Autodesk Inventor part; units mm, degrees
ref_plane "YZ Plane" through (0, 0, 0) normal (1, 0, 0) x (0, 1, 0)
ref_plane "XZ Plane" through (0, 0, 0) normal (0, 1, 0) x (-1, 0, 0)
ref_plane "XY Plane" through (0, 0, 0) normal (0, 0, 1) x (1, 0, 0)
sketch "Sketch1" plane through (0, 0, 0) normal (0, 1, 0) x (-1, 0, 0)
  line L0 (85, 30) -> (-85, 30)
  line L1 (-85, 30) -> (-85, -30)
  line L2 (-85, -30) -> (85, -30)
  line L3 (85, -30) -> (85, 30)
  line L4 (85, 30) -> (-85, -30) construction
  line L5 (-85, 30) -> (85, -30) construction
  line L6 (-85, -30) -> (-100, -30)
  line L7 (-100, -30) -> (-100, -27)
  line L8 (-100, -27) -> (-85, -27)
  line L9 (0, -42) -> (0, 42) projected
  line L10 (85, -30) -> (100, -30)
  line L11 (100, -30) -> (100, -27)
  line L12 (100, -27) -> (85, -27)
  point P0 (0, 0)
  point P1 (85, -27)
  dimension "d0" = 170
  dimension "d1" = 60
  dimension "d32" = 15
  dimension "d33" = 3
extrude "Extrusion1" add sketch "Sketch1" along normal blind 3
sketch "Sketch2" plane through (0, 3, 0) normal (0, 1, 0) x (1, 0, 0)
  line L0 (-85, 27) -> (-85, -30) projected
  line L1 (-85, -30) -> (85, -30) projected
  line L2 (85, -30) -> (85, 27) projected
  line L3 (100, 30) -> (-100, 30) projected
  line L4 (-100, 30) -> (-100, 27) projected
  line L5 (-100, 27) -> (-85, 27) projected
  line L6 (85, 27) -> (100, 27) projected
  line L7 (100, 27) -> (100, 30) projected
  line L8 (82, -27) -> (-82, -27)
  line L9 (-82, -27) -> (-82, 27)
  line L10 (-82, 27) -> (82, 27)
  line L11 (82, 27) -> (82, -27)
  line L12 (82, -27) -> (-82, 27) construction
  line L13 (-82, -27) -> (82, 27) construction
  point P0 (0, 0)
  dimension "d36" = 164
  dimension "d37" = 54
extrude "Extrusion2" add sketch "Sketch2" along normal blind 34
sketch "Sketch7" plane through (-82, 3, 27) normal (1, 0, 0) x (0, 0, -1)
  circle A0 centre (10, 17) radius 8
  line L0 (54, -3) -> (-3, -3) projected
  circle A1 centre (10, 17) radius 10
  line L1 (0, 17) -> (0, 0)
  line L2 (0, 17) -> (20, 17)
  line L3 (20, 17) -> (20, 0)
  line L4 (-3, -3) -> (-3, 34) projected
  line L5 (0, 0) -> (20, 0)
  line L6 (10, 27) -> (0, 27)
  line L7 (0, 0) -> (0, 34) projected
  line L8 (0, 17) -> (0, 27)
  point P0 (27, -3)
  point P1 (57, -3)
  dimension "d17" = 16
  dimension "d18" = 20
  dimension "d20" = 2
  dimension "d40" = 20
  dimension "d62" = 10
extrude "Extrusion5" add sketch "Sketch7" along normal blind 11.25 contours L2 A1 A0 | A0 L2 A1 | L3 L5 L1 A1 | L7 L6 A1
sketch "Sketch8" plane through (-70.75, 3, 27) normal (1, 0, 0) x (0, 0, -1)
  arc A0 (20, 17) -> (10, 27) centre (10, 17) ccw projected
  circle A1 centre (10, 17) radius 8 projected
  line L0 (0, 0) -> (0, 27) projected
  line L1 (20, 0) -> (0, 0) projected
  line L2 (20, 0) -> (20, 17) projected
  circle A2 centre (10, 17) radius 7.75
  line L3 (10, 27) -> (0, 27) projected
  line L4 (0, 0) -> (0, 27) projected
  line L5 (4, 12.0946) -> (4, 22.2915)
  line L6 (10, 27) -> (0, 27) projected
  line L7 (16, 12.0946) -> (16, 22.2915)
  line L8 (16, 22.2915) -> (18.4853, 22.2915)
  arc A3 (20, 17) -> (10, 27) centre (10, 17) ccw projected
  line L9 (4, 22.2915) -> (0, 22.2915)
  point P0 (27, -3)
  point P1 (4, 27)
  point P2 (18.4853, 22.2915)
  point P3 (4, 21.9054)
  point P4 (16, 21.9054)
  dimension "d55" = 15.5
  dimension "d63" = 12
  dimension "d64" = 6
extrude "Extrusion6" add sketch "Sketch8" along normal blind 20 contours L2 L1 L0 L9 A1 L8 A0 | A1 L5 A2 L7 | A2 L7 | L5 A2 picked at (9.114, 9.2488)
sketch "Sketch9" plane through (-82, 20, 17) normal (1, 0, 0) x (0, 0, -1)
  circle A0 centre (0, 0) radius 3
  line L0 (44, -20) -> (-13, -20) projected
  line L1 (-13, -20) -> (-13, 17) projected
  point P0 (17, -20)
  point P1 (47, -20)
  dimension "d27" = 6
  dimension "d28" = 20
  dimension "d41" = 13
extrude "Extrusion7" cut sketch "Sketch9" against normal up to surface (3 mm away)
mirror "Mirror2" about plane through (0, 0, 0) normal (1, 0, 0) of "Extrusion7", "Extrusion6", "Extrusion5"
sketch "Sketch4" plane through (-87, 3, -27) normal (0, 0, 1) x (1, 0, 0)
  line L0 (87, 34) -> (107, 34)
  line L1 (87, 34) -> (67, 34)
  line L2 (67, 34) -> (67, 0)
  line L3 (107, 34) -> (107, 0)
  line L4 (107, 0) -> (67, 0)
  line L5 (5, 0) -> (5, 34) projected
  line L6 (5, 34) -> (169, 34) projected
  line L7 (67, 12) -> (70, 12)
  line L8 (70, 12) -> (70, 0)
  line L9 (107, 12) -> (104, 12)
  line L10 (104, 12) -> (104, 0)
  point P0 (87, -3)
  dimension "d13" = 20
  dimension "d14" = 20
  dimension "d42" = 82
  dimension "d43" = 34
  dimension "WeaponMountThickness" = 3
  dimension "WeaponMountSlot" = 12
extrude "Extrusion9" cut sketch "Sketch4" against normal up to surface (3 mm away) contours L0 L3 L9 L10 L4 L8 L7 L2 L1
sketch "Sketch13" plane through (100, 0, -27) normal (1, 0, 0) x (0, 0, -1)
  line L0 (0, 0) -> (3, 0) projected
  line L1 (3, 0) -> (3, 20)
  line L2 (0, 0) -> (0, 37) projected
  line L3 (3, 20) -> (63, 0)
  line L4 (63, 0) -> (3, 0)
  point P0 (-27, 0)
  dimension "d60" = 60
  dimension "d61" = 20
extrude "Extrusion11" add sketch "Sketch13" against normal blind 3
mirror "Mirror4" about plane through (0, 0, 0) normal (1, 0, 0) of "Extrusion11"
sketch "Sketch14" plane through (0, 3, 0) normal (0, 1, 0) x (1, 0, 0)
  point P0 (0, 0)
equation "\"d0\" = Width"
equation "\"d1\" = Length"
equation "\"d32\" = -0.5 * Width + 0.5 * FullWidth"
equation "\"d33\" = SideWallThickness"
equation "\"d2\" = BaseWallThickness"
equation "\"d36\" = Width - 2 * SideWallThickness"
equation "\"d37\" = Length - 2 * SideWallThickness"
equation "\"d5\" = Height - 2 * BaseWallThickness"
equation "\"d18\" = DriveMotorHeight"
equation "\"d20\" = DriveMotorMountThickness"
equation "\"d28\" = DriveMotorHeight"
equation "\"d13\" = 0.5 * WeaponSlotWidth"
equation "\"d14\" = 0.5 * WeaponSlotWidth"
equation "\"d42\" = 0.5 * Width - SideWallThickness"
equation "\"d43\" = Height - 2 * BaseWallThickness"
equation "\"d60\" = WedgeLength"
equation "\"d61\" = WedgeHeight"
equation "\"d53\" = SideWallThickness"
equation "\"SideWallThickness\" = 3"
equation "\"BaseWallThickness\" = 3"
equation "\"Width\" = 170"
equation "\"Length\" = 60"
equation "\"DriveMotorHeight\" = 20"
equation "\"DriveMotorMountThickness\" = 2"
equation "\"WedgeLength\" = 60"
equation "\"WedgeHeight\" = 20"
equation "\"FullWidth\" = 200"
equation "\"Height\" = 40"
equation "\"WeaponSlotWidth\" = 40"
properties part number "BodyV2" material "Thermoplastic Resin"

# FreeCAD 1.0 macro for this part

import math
import FreeCAD as App
import Part
import Sketcher
from FreeCAD import Vector

doc = App.newDocument("Part")
body = doc.addObject("PartDesign::Body", "Body")

# Sketch on XZ plane
sketch1 = body.newObject("Sketcher::SketchObject", "Sketch")
sketch1.AttachmentSupport = (doc.getObject("XZ_Plane"), [""])
sketch1.MapMode = "FlatFace"
sketch1.addGeometry(Part.LineSegment(Vector(-85, -27, 0), Vector(-85, 30, 0)), False)
sketch1.addGeometry(Part.LineSegment(Vector(-85, 30, 0), Vector(85, 30, 0)), False)
sketch1.addGeometry(Part.LineSegment(Vector(85, 30, 0), Vector(85, -27, 0)), False)
sketch1.addGeometry(Part.LineSegment(Vector(85, -27, 0), Vector(100, -27, 0)), False)
sketch1.addGeometry(Part.LineSegment(Vector(100, -27, 0), Vector(100, -30, 0)), False)
sketch1.addGeometry(Part.LineSegment(Vector(100, -30, 0), Vector(-100, -30, 0)), False)
sketch1.addGeometry(Part.LineSegment(Vector(-100, -30, 0), Vector(-100, -27, 0)), False)
sketch1.addGeometry(Part.LineSegment(Vector(-100, -27, 0), Vector(-85, -27, 0)), False)
sketch1.addConstraint(Sketcher.Constraint("Coincident", 0, 2, 1, 1))
sketch1.addConstraint(Sketcher.Constraint("Coincident", 1, 2, 2, 1))
sketch1.addConstraint(Sketcher.Constraint("Coincident", 2, 2, 3, 1))
sketch1.addConstraint(Sketcher.Constraint("Coincident", 3, 2, 4, 1))
sketch1.addConstraint(Sketcher.Constraint("Coincident", 4, 2, 5, 1))
sketch1.addConstraint(Sketcher.Constraint("Coincident", 5, 2, 6, 1))
sketch1.addConstraint(Sketcher.Constraint("Coincident", 6, 2, 7, 1))
sketch1.addConstraint(Sketcher.Constraint("Coincident", 7, 2, 0, 1))
sketch1.addConstraint(Sketcher.Constraint("Vertical", 0))
sketch1.addConstraint(Sketcher.Constraint("Horizontal", 1))
sketch1.addConstraint(Sketcher.Constraint("Vertical", 2))
sketch1.addConstraint(Sketcher.Constraint("Horizontal", 3))
sketch1.addConstraint(Sketcher.Constraint("Vertical", 4))
sketch1.addConstraint(Sketcher.Constraint("Horizontal", 5))
sketch1.addConstraint(Sketcher.Constraint("Vertical", 6))
sketch1.addConstraint(Sketcher.Constraint("Horizontal", 7))
sketch1.addConstraint(Sketcher.Constraint("Symmetric", 3, 2, 6, 2, -2))
sketch1.addConstraint(Sketcher.Constraint("Equal", 3, 7))
sketch1.addConstraint(Sketcher.Constraint("DistanceX", 1, 1, 1, 2, 170.0))
sketch1.addConstraint(Sketcher.Constraint("DistanceX", 3, 1, 3, 2, 15.0))
sketch1.addConstraint(Sketcher.Constraint("DistanceY", 4, 2, 4, 1, 3.0))
sketch1.addConstraint(Sketcher.Constraint("DistanceY", 4, 2, 1, 2, 60.0))
sketch1.addConstraint(Sketcher.Constraint("DistanceY", -1, 1, 0, 2, 30.0))
pad1 = body.newObject("PartDesign::Pad", "Pad")
pad1.Profile = sketch1
pad1.Length = 3
pad1.Reversed = True

# Sketch on XZ plane
sketch2 = body.newObject("Sketcher::SketchObject", "Sketch001")
sketch2.AttachmentSupport = (doc.getObject("XZ_Plane"), [""])
sketch2.MapMode = "FlatFace"
sketch2.AttachmentOffset = App.Placement(Vector(0, 0, -3), App.Rotation())
sketch2.addGeometry(Part.LineSegment(Vector(-100, -27, 0), Vector(-85, -27, 0)), False)
sketch2.addGeometry(Part.LineSegment(Vector(-85, -27, 0), Vector(-85, 30, 0)), False)
sketch2.addGeometry(Part.LineSegment(Vector(-85, 30, 0), Vector(85, 30, 0)), False)
sketch2.addGeometry(Part.LineSegment(Vector(85, 30, 0), Vector(85, -27, 0)), False)
sketch2.addGeometry(Part.LineSegment(Vector(85, -27, 0), Vector(100, -27, 0)), False)
sketch2.addGeometry(Part.LineSegment(Vector(100, -27, 0), Vector(100, -30, 0)), False)
sketch2.addGeometry(Part.LineSegment(Vector(100, -30, 0), Vector(-100, -30, 0)), False)
sketch2.addGeometry(Part.LineSegment(Vector(-100, -30, 0), Vector(-100, -27, 0)), False)
sketch2.addGeometry(Part.LineSegment(Vector(82, -27, 0), Vector(82, 27, 0)), False)
sketch2.addGeometry(Part.LineSegment(Vector(82, 27, 0), Vector(-82, 27, 0)), False)
sketch2.addGeometry(Part.LineSegment(Vector(-82, 27, 0), Vector(-82, -27, 0)), False)
sketch2.addGeometry(Part.LineSegment(Vector(-82, -27, 0), Vector(82, -27, 0)), False)
sketch2.addConstraint(Sketcher.Constraint("Coincident", 0, 2, 1, 1))
sketch2.addConstraint(Sketcher.Constraint("Coincident", 1, 2, 2, 1))
sketch2.addConstraint(Sketcher.Constraint("Coincident", 2, 2, 3, 1))
sketch2.addConstraint(Sketcher.Constraint("Coincident", 3, 2, 4, 1))
sketch2.addConstraint(Sketcher.Constraint("Coincident", 4, 2, 5, 1))
sketch2.addConstraint(Sketcher.Constraint("Coincident", 5, 2, 6, 1))
sketch2.addConstraint(Sketcher.Constraint("Coincident", 6, 2, 7, 1))
sketch2.addConstraint(Sketcher.Constraint("Coincident", 7, 2, 0, 1))
sketch2.addConstraint(Sketcher.Constraint("Coincident", 8, 2, 9, 1))
sketch2.addConstraint(Sketcher.Constraint("Coincident", 9, 2, 10, 1))
sketch2.addConstraint(Sketcher.Constraint("Coincident", 10, 2, 11, 1))
sketch2.addConstraint(Sketcher.Constraint("Coincident", 11, 2, 8, 1))
sketch2.addConstraint(Sketcher.Constraint("Horizontal", 0))
sketch2.addConstraint(Sketcher.Constraint("Vertical", 1))
sketch2.addConstraint(Sketcher.Constraint("Horizontal", 2))
sketch2.addConstraint(Sketcher.Constraint("Vertical", 3))
sketch2.addConstraint(Sketcher.Constraint("Horizontal", 4))
sketch2.addConstraint(Sketcher.Constraint("Vertical", 5))
sketch2.addConstraint(Sketcher.Constraint("Horizontal", 6))
sketch2.addConstraint(Sketcher.Constraint("Vertical", 7))
sketch2.addConstraint(Sketcher.Constraint("Vertical", 8))
sketch2.addConstraint(Sketcher.Constraint("Horizontal", 9))
sketch2.addConstraint(Sketcher.Constraint("Vertical", 10))
sketch2.addConstraint(Sketcher.Constraint("Horizontal", 11))
sketch2.addConstraint(Sketcher.Constraint("Symmetric", 8, 2, 10, 2, -1, 1))
sketch2.addConstraint(Sketcher.Constraint("Symmetric", 0, 2, 3, 2, -2))
sketch2.addConstraint(Sketcher.Constraint("Horizontal", 7, 2, 10, 2))
sketch2.addConstraint(Sketcher.Constraint("Equal", 0, 4))
sketch2.addConstraint(Sketcher.Constraint("DistanceX", 9, 2, 9, 1, 164.0))
sketch2.addConstraint(Sketcher.Constraint("DistanceY", 8, 1, 8, 2, 54.0))
sketch2.addConstraint(Sketcher.Constraint("DistanceX", 0, 1, 0, 2, 15.0))
sketch2.addConstraint(Sketcher.Constraint("DistanceX", 2, 1, 2, 2, 170.0))
sketch2.addConstraint(Sketcher.Constraint("DistanceY", 1, 1, 1, 2, 57.0))
sketch2.addConstraint(Sketcher.Constraint("DistanceY", 5, 2, 5, 1, 3.0))
pad2 = body.newObject("PartDesign::Pad", "Pad001")
pad2.Profile = sketch2
pad2.Length = 34
pad2.Reversed = True

# Sketch on YZ plane
sketch3 = body.newObject("Sketcher::SketchObject", "Sketch002")
sketch3.AttachmentSupport = (doc.getObject("YZ_Plane"), [""])
sketch3.MapMode = "FlatFace"
sketch3.AttachmentOffset = App.Placement(Vector(0, 0, -82), App.Rotation())
sketch3.addGeometry(Part.ArcOfCircle(Part.Circle(Vector(20, 17, 0), Vector(0, 0, 1), 10), math.radians(-90), math.radians(0)), False)
sketch3.addGeometry(Part.LineSegment(Vector(30, 17, 0), Vector(30, 27, 0)), False)
sketch3.addGeometry(Part.LineSegment(Vector(30, 27, 0), Vector(3, 27, 0)), False)
sketch3.addGeometry(Part.LineSegment(Vector(3, 27, 0), Vector(3, 7, 0)), False)
sketch3.addGeometry(Part.LineSegment(Vector(3, 7, 0), Vector(20, 7, 0)), False)
sketch3.addGeometry(Part.Circle(Vector(20, 17, 0), Vector(0, 0, 1), 8), False)
sketch3.addConstraint(Sketcher.Constraint("Tangent", 0, 2, 1, 1))
sketch3.addConstraint(Sketcher.Constraint("Coincident", 1, 2, 2, 1))
sketch3.addConstraint(Sketcher.Constraint("Coincident", 2, 2, 3, 1))
sketch3.addConstraint(Sketcher.Constraint("Coincident", 3, 2, 4, 1))
sketch3.addConstraint(Sketcher.Constraint("Tangent", 4, 2, 0, 1))
sketch3.addConstraint(Sketcher.Constraint("Vertical", 1))
sketch3.addConstraint(Sketcher.Constraint("Horizontal", 2))
sketch3.addConstraint(Sketcher.Constraint("Vertical", 3))
sketch3.addConstraint(Sketcher.Constraint("Horizontal", 4))
sketch3.addConstraint(Sketcher.Constraint("Coincident", 5, 3, 0, 3))
sketch3.addConstraint(Sketcher.Constraint("Diameter", 5, 16.0))
sketch3.addConstraint(Sketcher.Constraint("Radius", 0, 10.0))
sketch3.addConstraint(Sketcher.Constraint("DistanceY", 1, 1, 1, 2, 10.0))
sketch3.addConstraint(Sketcher.Constraint("DistanceX", -1, 1, 0, 3, 20.0))
sketch3.addConstraint(Sketcher.Constraint("DistanceX", 2, 2, 2, 1, 27.0))
sketch3.addConstraint(Sketcher.Constraint("DistanceY", -1, 1, 0, 3, 17.0))
pad3 = body.newObject("PartDesign::Pad", "Pad002")
pad3.Profile = sketch3
pad3.Length = 11.25

# Sketch on YZ plane
sketch4 = body.newObject("Sketcher::SketchObject", "Sketch003")
sketch4.AttachmentSupport = (doc.getObject("YZ_Plane"), [""])
sketch4.MapMode = "FlatFace"
sketch4.AttachmentOffset = App.Placement(Vector(0, 0, -70.75), App.Rotation())
sketch4.addGeometry(Part.LineSegment(Vector(3, 7, 0), Vector(20, 7, 0)), False)
sketch4.addGeometry(Part.ArcOfCircle(Part.Circle(Vector(20, 17, 0), Vector(0, 0, 1), 10), math.radians(-90), math.radians(-58)), False)
sketch4.addGeometry(Part.LineSegment(Vector(25.3, 8.5, 0), Vector(25.3, 11, 0)), False)
sketch4.addGeometry(Part.LineSegment(Vector(25.3, 11, 0), Vector(15.1, 11, 0)), False)
sketch4.addGeometry(Part.ArcOfCircle(Part.Circle(Vector(20, 17, 0), Vector(0, 0, 1), 7.8), math.radians(129), math.radians(231)), False)
sketch4.addGeometry(Part.LineSegment(Vector(15.1, 23, 0), Vector(25.3, 23, 0)), False)
sketch4.addGeometry(Part.LineSegment(Vector(25.3, 23, 0), Vector(25.3, 27, 0)), False)
sketch4.addGeometry(Part.LineSegment(Vector(25.3, 27, 0), Vector(3, 27, 0)), False)
sketch4.addGeometry(Part.LineSegment(Vector(3, 27, 0), Vector(3, 7, 0)), False)
sketch4.addConstraint(Sketcher.Constraint("Tangent", 0, 2, 1, 1))
sketch4.addConstraint(Sketcher.Constraint("Coincident", 1, 2, 2, 1))
sketch4.addConstraint(Sketcher.Constraint("Coincident", 2, 2, 3, 1))
sketch4.addConstraint(Sketcher.Constraint("Coincident", 3, 2, 4, 2))
sketch4.addConstraint(Sketcher.Constraint("Coincident", 4, 1, 5, 1))
sketch4.addConstraint(Sketcher.Constraint("Coincident", 5, 2, 6, 1))
sketch4.addConstraint(Sketcher.Constraint("Coincident", 6, 2, 7, 1))
sketch4.addConstraint(Sketcher.Constraint("Coincident", 7, 2, 8, 1))
sketch4.addConstraint(Sketcher.Constraint("Coincident", 8, 2, 0, 1))
sketch4.addConstraint(Sketcher.Constraint("Horizontal", 0))
sketch4.addConstraint(Sketcher.Constraint("Vertical", 2))
sketch4.addConstraint(Sketcher.Constraint("Horizontal", 3))
sketch4.addConstraint(Sketcher.Constraint("Horizontal", 5))
sketch4.addConstraint(Sketcher.Constraint("Vertical", 6))
sketch4.addConstraint(Sketcher.Constraint("Horizontal", 7))
sketch4.addConstraint(Sketcher.Constraint("Vertical", 8))
sketch4.addConstraint(Sketcher.Constraint("Coincident", 4, 3, 1, 3))
sketch4.addConstraint(Sketcher.Constraint("Vertical", 3, 2, 4, 1))
sketch4.addConstraint(Sketcher.Constraint("Vertical", 2, 2, 5, 2))
sketch4.addConstraint(Sketcher.Constraint("Radius", 4, 7.75))
sketch4.addConstraint(Sketcher.Constraint("Radius", 1, 10.0))
sketch4.addConstraint(Sketcher.Constraint("DistanceY", 2, 2, 1, 3, 6.0))
sketch4.addConstraint(Sketcher.Constraint("DistanceX", 0, 1, 0, 2, 17.0))
sketch4.addConstraint(Sketcher.Constraint("DistanceY", 6, 1, 6, 2, 4.0))
sketch4.addConstraint(Sketcher.Constraint("DistanceX", -1, 1, 1, 3, 20.0))
sketch4.addConstraint(Sketcher.Constraint("DistanceY", -1, 1, 1, 3, 17.0))
sketch4.addConstraint(Sketcher.Constraint("DistanceX", 3, 2, 3, 1, 10.197))
pad4 = body.newObject("PartDesign::Pad", "Pad003")
pad4.Profile = sketch4
pad4.Length = 20

# Sketch on YZ plane
sketch5 = body.newObject("Sketcher::SketchObject", "Sketch004")
sketch5.AttachmentSupport = (doc.getObject("YZ_Plane"), [""])
sketch5.MapMode = "FlatFace"
sketch5.AttachmentOffset = App.Placement(Vector(0, 0, -82), App.Rotation())
sketch5.addGeometry(Part.Circle(Vector(20, 17, 0), Vector(0, 0, 1), 3), False)
sketch5.addConstraint(Sketcher.Constraint("Diameter", 0, 6.0))
sketch5.addConstraint(Sketcher.Constraint("DistanceX", -1, 1, 0, 3, 20.0))
sketch5.addConstraint(Sketcher.Constraint("DistanceY", -1, 1, 0, 3, 17.0))
pocket1 = body.newObject("PartDesign::Pocket", "Pocket")
pocket1.Profile = sketch5
pocket1.Length = 3
doc.recompute()

mirrored = body.newObject("PartDesign::Mirrored", "Mirrored")
mirrored.Originals = [pocket1, pad4, pad3]
mirrored.MirrorPlane = (doc.getObject("YZ_Plane"), [""])
body.Tip = mirrored

# Sketch on XY plane
sketch6 = body.newObject("Sketcher::SketchObject", "Sketch005")
sketch6.AttachmentSupport = (doc.getObject("XY_Plane"), [""])
sketch6.MapMode = "FlatFace"
sketch6.AttachmentOffset = App.Placement(Vector(0, 0, -27), App.Rotation())
sketch6.addGeometry(Part.LineSegment(Vector(20, 37, 0), Vector(-20, 37, 0)), False)
sketch6.addGeometry(Part.LineSegment(Vector(-20, 37, 0), Vector(-20, 15, 0)), False)
sketch6.addGeometry(Part.LineSegment(Vector(-20, 15, 0), Vector(-17, 15, 0)), False)
sketch6.addGeometry(Part.LineSegment(Vector(-17, 15, 0), Vector(-17, 3, 0)), False)
sketch6.addGeometry(Part.LineSegment(Vector(-17, 3, 0), Vector(17, 3, 0)), False)
sketch6.addGeometry(Part.LineSegment(Vector(17, 3, 0), Vector(17, 15, 0)), False)
sketch6.addGeometry(Part.LineSegment(Vector(17, 15, 0), Vector(20, 15, 0)), False)
sketch6.addGeometry(Part.LineSegment(Vector(20, 15, 0), Vector(20, 37, 0)), False)
sketch6.addConstraint(Sketcher.Constraint("Coincident", 0, 2, 1, 1))
sketch6.addConstraint(Sketcher.Constraint("Coincident", 1, 2, 2, 1))
sketch6.addConstraint(Sketcher.Constraint("Coincident", 2, 2, 3, 1))
sketch6.addConstraint(Sketcher.Constraint("Coincident", 3, 2, 4, 1))
sketch6.addConstraint(Sketcher.Constraint("Coincident", 4, 2, 5, 1))
sketch6.addConstraint(Sketcher.Constraint("Coincident", 5, 2, 6, 1))
sketch6.addConstraint(Sketcher.Constraint("Coincident", 6, 2, 7, 1))
sketch6.addConstraint(Sketcher.Constraint("Coincident", 7, 2, 0, 1))
sketch6.addConstraint(Sketcher.Constraint("Horizontal", 0))
sketch6.addConstraint(Sketcher.Constraint("Vertical", 1))
sketch6.addConstraint(Sketcher.Constraint("Horizontal", 2))
sketch6.addConstraint(Sketcher.Constraint("Vertical", 3))
sketch6.addConstraint(Sketcher.Constraint("Horizontal", 4))
sketch6.addConstraint(Sketcher.Constraint("Vertical", 5))
sketch6.addConstraint(Sketcher.Constraint("Horizontal", 6))
sketch6.addConstraint(Sketcher.Constraint("Vertical", 7))
sketch6.addConstraint(Sketcher.Constraint("Symmetric", 2, 2, 5, 2, -2))
sketch6.addConstraint(Sketcher.Constraint("Equal", 2, 6))
sketch6.addConstraint(Sketcher.Constraint("DistanceX", 2, 1, 2, 2, 3.0))
sketch6.addConstraint(Sketcher.Constraint("DistanceX", 4, 1, 4, 2, 34.0))
sketch6.addConstraint(Sketcher.Constraint("DistanceY", 3, 2, 3, 1, 12.0))
sketch6.addConstraint(Sketcher.Constraint("DistanceY", -1, 1, 3, 2, 3.0))
sketch6.addConstraint(Sketcher.Constraint("DistanceY", 3, 2, 0, 2, 34.0))
pocket2 = body.newObject("PartDesign::Pocket", "Pocket001")
pocket2.Profile = sketch6
pocket2.Length = 3

# Sketch on YZ plane
sketch7 = body.newObject("Sketcher::SketchObject", "Sketch006")
sketch7.AttachmentSupport = (doc.getObject("YZ_Plane"), [""])
sketch7.MapMode = "FlatFace"
sketch7.AttachmentOffset = App.Placement(Vector(0, 0, 100), App.Rotation())
sketch7.addGeometry(Part.LineSegment(Vector(20, -30, 0), Vector(0, -30, 0)), False)
sketch7.addGeometry(Part.LineSegment(Vector(0, -30, 0), Vector(0, -90, 0)), False)
sketch7.addGeometry(Part.LineSegment(Vector(0, -90, 0), Vector(20, -30, 0)), False)
sketch7.addConstraint(Sketcher.Constraint("Coincident", 0, 2, 1, 1))
sketch7.addConstraint(Sketcher.Constraint("Coincident", 1, 2, 2, 1))
sketch7.addConstraint(Sketcher.Constraint("Coincident", 2, 2, 0, 1))
sketch7.addConstraint(Sketcher.Constraint("Horizontal", 0))
sketch7.addConstraint(Sketcher.Constraint("Vertical", 1))
sketch7.addConstraint(Sketcher.Constraint("PointOnObject", 0, 2, -2))
sketch7.addConstraint(Sketcher.Constraint("DistanceX", 0, 2, 0, 1, 20.0))
sketch7.addConstraint(Sketcher.Constraint("DistanceY", 1, 2, 1, 1, 60.0))
sketch7.addConstraint(Sketcher.Constraint("DistanceY", 0, 2, -1, 1, 30.0))
pad5 = body.newObject("PartDesign::Pad", "Pad004")
pad5.Profile = sketch7
pad5.Length = 3
pad5.Reversed = True
doc.recompute()

mirrored2 = body.newObject("PartDesign::Mirrored", "Mirrored001")
mirrored2.Originals = [pad5]
mirrored2.MirrorPlane = (doc.getObject("YZ_Plane"), [""])
body.Tip = mirrored2

doc.recompute()
